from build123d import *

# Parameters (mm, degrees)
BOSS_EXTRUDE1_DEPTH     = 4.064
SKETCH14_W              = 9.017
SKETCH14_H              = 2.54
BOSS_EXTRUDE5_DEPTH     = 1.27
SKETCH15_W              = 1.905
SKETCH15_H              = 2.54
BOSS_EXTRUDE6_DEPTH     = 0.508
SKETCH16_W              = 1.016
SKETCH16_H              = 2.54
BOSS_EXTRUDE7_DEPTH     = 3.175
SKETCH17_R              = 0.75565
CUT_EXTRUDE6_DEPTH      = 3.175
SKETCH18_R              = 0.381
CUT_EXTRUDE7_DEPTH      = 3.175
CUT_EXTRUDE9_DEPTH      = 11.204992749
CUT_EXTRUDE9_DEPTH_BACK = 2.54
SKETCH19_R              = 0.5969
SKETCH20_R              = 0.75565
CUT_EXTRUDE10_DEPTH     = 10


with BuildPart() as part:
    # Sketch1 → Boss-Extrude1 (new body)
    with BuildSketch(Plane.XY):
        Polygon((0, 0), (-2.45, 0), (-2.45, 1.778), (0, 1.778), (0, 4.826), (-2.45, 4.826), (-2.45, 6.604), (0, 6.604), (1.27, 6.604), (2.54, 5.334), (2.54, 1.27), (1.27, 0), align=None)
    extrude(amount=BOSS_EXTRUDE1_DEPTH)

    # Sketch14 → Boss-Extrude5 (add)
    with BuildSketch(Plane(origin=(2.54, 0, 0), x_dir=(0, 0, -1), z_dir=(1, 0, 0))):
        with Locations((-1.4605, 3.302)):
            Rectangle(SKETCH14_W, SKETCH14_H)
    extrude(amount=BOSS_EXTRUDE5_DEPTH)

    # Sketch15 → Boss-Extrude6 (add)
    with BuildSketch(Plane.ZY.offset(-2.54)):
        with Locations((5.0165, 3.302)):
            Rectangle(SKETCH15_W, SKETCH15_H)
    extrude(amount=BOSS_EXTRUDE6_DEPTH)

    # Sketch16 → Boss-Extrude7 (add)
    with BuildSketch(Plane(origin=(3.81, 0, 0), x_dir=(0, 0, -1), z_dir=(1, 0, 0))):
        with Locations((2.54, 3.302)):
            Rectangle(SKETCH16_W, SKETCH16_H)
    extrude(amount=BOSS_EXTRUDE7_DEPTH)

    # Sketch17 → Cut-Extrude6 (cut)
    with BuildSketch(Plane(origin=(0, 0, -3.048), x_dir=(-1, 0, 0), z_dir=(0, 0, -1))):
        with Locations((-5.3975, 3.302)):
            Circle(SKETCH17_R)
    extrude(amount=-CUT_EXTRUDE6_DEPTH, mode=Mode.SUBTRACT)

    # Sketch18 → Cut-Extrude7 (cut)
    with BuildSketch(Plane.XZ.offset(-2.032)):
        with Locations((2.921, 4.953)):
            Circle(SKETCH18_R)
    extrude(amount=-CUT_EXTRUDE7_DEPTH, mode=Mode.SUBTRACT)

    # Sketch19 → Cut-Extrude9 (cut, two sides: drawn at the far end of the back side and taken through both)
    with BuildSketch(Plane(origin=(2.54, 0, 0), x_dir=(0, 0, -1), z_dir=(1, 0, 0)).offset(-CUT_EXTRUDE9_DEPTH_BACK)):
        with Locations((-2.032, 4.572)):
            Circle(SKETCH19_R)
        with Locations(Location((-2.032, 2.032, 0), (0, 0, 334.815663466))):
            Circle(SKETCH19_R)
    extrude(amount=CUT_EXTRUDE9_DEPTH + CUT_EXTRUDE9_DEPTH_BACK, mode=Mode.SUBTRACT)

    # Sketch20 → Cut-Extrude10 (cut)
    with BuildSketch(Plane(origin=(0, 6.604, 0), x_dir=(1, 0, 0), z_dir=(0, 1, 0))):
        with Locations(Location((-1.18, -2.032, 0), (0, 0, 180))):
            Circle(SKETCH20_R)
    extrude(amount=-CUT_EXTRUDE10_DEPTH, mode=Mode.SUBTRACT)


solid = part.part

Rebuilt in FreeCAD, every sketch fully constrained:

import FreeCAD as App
import Part
import Sketcher

V = App.Vector
Q = App.Units.Quantity


def add_polygon(sketch, points):
    """Adds a closed chain of lines whose ends are joined by coincident constraints."""
    first, n = sketch.GeometryCount, len(points)
    for a, b in zip(points, points[1:] + points[:1]):
        sketch.addGeometry(Part.LineSegment(App.Vector(*a, 0), App.Vector(*b, 0)), False)
    for i in range(n):
        sketch.addConstraint(Sketcher.Constraint("Coincident", first + i, 2, first + (i + 1) % n, 1))

doc = App.newDocument("Part")
body = doc.addObject("PartDesign::Body", "Body")

# Sketch on XY plane
sketch1 = body.newObject("Sketcher::SketchObject", "Sketch")
sketch1.AttachmentSupport = (doc.getObject("XY_Plane"), [""])
sketch1.MapMode = "FlatFace"
add_polygon(sketch1, [(-2.5, 0), (1.3, 0), (2.5, 1.3), (2.5, 5.3), (1.3, 6.6), (-2.5, 6.6), (-2.5, 4.8), (0, 4.8), (0, 1.8), (-2.5, 1.8)])  # lines 0-9
sketch1.addConstraint(Sketcher.Constraint("Horizontal", 0))
sketch1.addConstraint(Sketcher.Constraint("Vertical", 2))
sketch1.addConstraint(Sketcher.Constraint("Horizontal", 4))
sketch1.addConstraint(Sketcher.Constraint("Vertical", 5))
sketch1.addConstraint(Sketcher.Constraint("Horizontal", 6))
sketch1.addConstraint(Sketcher.Constraint("Vertical", 7))
sketch1.addConstraint(Sketcher.Constraint("Horizontal", 8))
sketch1.addConstraint(Sketcher.Constraint("Vertical", 9))
sketch1.addConstraint(Sketcher.Constraint("PointOnObject", 0, 2, -1))
sketch1.addConstraint(Sketcher.Constraint("PointOnObject", 6, 2, -2))
sketch1.addConstraint(Sketcher.Constraint("Perpendicular", 1, 3))
sketch1.addConstraint(Sketcher.Constraint("Vertical", 0, 2, 3, 2))
sketch1.addConstraint(Sketcher.Constraint("Vertical", 5, 2, 8, 2))
sketch1.addConstraint(Sketcher.Constraint("Equal", 5, 9))
sketch1.addConstraint(Sketcher.Constraint("Equal", 1, 3))
sketch1.addConstraint(Sketcher.Constraint("DistanceY", 2, 1, 2, 2, Q("0.16 in")))
sketch1.addConstraint(Sketcher.Constraint("DistanceY", 5, 2, 5, 1, Q("0.07 in")))
sketch1.addConstraint(Sketcher.Constraint("DistanceY", 7, 2, 7, 1, Q("0.12 in")))
sketch1.addConstraint(Sketcher.Constraint("DistanceX", -1, 1, 1, 2, Q("0.1 in")))
sketch1.addConstraint(Sketcher.Constraint("DistanceX", 0, 1, 0, 2, Q("3.72 mm")))
pad1 = body.newObject("PartDesign::Pad", "Pad")
pad1.Profile = sketch1
pad1.Length = Q("0.16 in")

# Sketch on YZ plane
sketch2 = body.newObject("Sketcher::SketchObject", "Sketch001")
sketch2.AttachmentSupport = (doc.getObject("YZ_Plane"), [""])
sketch2.MapMode = "FlatFace"
sketch2.AttachmentOffset = App.Placement(V(0, 0, 0.1 * 25.4), App.Rotation())
add_polygon(sketch2, [(4.6, 6), (2, 6), (2, -3), (4.6, -3)])  # lines 0-3
sketch2.addConstraint(Sketcher.Constraint("Horizontal", 0))
sketch2.addConstraint(Sketcher.Constraint("Vertical", 1))
sketch2.addConstraint(Sketcher.Constraint("Horizontal", 2))
sketch2.addConstraint(Sketcher.Constraint("Vertical", 3))
sketch2.addConstraint(Sketcher.Constraint("DistanceX", 0, 2, 0, 1, Q("0.1 in")))
sketch2.addConstraint(Sketcher.Constraint("DistanceY", 1, 2, 1, 1, Q("0.355 in")))
sketch2.addConstraint(Sketcher.Constraint("DistanceX", -1, 1, 0, 2, Q("0.08 in")))
sketch2.addConstraint(Sketcher.Constraint("DistanceY", 1, 2, -1, 1, Q("0.12 in")))
pad2 = body.newObject("PartDesign::Pad", "Pad001")
pad2.Profile = sketch2
pad2.Length = Q("0.05 in")

# Sketch on YZ plane
sketch3 = body.newObject("Sketcher::SketchObject", "Sketch002")
sketch3.AttachmentSupport = (doc.getObject("YZ_Plane"), [""])
sketch3.MapMode = "FlatFace"
sketch3.AttachmentOffset = App.Placement(V(0, 0, 0.1 * 25.4), App.Rotation())
add_polygon(sketch3, [(4.6, 4.1), (2, 4.1), (2, 6), (4.6, 6)])  # lines 0-3
sketch3.addConstraint(Sketcher.Constraint("Horizontal", 0))
sketch3.addConstraint(Sketcher.Constraint("Vertical", 1))
sketch3.addConstraint(Sketcher.Constraint("Horizontal", 2))
sketch3.addConstraint(Sketcher.Constraint("Vertical", 3))
sketch3.addConstraint(Sketcher.Constraint("DistanceX", 0, 2, 0, 1, Q("0.1 in")))
sketch3.addConstraint(Sketcher.Constraint("DistanceY", 1, 1, 1, 2, Q("0.075 in")))
sketch3.addConstraint(Sketcher.Constraint("DistanceX", -1, 1, 0, 2, Q("0.08 in")))
sketch3.addConstraint(Sketcher.Constraint("DistanceY", -1, 1, 0, 2, Q("0.16 in")))
pad3 = body.newObject("PartDesign::Pad", "Pad002")
pad3.Profile = sketch3
pad3.Length = Q("0.02 in")
pad3.Reversed = True

# Sketch on YZ plane
sketch4 = body.newObject("Sketcher::SketchObject", "Sketch003")
sketch4.AttachmentSupport = (doc.getObject("YZ_Plane"), [""])
sketch4.MapMode = "FlatFace"
sketch4.AttachmentOffset = App.Placement(V(0, 0, 0.15 * 25.4), App.Rotation())
add_polygon(sketch4, [(4.6, -2), (2, -2), (2, -3), (4.6, -3)])  # lines 0-3
sketch4.addConstraint(Sketcher.Constraint("Horizontal", 0))
sketch4.addConstraint(Sketcher.Constraint("Vertical", 1))
sketch4.addConstraint(Sketcher.Constraint("Horizontal", 2))
sketch4.addConstraint(Sketcher.Constraint("Vertical", 3))
sketch4.addConstraint(Sketcher.Constraint("DistanceX", 0, 2, 0, 1, Q("0.1 in")))
sketch4.addConstraint(Sketcher.Constraint("DistanceY", 1, 2, 1, 1, Q("0.04 in")))
sketch4.addConstraint(Sketcher.Constraint("DistanceX", -1, 1, 0, 2, Q("0.08 in")))
sketch4.addConstraint(Sketcher.Constraint("DistanceY", 0, 2, -1, 1, Q("0.08 in")))
pad4 = body.newObject("PartDesign::Pad", "Pad003")
pad4.Profile = sketch4
pad4.Length = Q("0.125 in")

# Sketch on XY plane
sketch5 = body.newObject("Sketcher::SketchObject", "Sketch004")
sketch5.AttachmentSupport = (doc.getObject("XY_Plane"), [""])
sketch5.MapMode = "FlatFace"
sketch5.AttachmentOffset = App.Placement(V(0, 0, -0.12 * 25.4), App.Rotation())
sketch5.addGeometry(Part.Circle(V(5.4, 3.3, 0), V(0, 0, 1), 0.8), False)
sketch5.addConstraint(Sketcher.Constraint("Diameter", 0, Q("0.0595 in")))
sketch5.addConstraint(Sketcher.Constraint("DistanceY", -1, 1, 0, 3, Q("0.13 in")))
sketch5.addConstraint(Sketcher.Constraint("DistanceX", -1, 1, 0, 3, Q("0.2125 in")))
pocket1 = body.newObject("PartDesign::Pocket", "Pocket")
pocket1.Profile = sketch5
pocket1.Length = Q("0.125 in")
pocket1.Reversed = True

# Sketch on XZ plane
sketch6 = body.newObject("Sketcher::SketchObject", "Sketch005")
sketch6.AttachmentSupport = (doc.getObject("XZ_Plane"), [""])
sketch6.MapMode = "FlatFace"
sketch6.AttachmentOffset = App.Placement(V(0, 0, -0.08 * 25.4), App.Rotation())
sketch6.addGeometry(Part.Circle(V(2.92, 4.95, 0), V(0, 0, 1), 0.38), False)
sketch6.addConstraint(Sketcher.Constraint("Diameter", 0, Q("0.03 in")))
sketch6.addConstraint(Sketcher.Constraint("DistanceX", -1, 1, 0, 3, Q("0.115 in")))
sketch6.addConstraint(Sketcher.Constraint("DistanceY", -1, 1, 0, 3, Q("0.195 in")))
pocket2 = body.newObject("PartDesign::Pocket", "Pocket001")
pocket2.Profile = sketch6
pocket2.Length = Q("0.125 in")

# Sketch on YZ plane
sketch7 = body.newObject("Sketcher::SketchObject", "Sketch006")
sketch7.AttachmentSupport = (doc.getObject("YZ_Plane"), [""])
sketch7.MapMode = "FlatFace"
sketch7.AttachmentOffset = App.Placement(V(0, 0, 0.1 * 25.4), App.Rotation())
sketch7.addGeometry(Part.Circle(V(4.6, 2, 0), V(0, 0, 1), 0.6), False)
sketch7.addGeometry(Part.Circle(V(2, 2, 0), V(0, 0, 1), 0.6), False)
sketch7.addConstraint(Sketcher.Constraint("Equal", 0, 1))
sketch7.addConstraint(Sketcher.Constraint("Horizontal", 0, 3, 1, 3))
sketch7.addConstraint(Sketcher.Constraint("Diameter", 0, Q("0.047 in")))
sketch7.addConstraint(Sketcher.Constraint("DistanceX", 1, 3, 0, 3, Q("0.1 in")))
sketch7.addConstraint(Sketcher.Constraint("DistanceX", -1, 1, 0, 3, Q("0.18 in")))
sketch7.addConstraint(Sketcher.Constraint("DistanceY", -1, 1, 0, 3, Q("0.08 in")))
pocket3 = body.newObject("PartDesign::Pocket", "Pocket002")
pocket3.Profile = sketch7
pocket3.Type = "TwoLengths"
pocket3.Length = 11.204993
pocket3.Length2 = Q("0.1 in")
pocket3.Reversed = True

# Sketch on XZ plane
sketch8 = body.newObject("Sketcher::SketchObject", "Sketch007")
sketch8.AttachmentSupport = (doc.getObject("XZ_Plane"), [""])
sketch8.MapMode = "FlatFace"
sketch8.AttachmentOffset = App.Placement(V(0, 0, -0.26 * 25.4), App.Rotation())
sketch8.addGeometry(Part.Circle(V(-1.2, 2, 0), V(0, 0, 1), 0.8), False)
sketch8.addConstraint(Sketcher.Constraint("Diameter", 0, Q("0.0595 in")))
sketch8.addConstraint(Sketcher.Constraint("DistanceY", -1, 1, 0, 3, Q("0.08 in")))
sketch8.addConstraint(Sketcher.Constraint("DistanceX", 0, 3, -1, 1, Q("1.18 mm")))
pocket4 = body.newObject("PartDesign::Pocket", "Pocket003")
pocket4.Profile = sketch8
pocket4.Length = 10
pocket4.Reversed = True

doc.recompute()
